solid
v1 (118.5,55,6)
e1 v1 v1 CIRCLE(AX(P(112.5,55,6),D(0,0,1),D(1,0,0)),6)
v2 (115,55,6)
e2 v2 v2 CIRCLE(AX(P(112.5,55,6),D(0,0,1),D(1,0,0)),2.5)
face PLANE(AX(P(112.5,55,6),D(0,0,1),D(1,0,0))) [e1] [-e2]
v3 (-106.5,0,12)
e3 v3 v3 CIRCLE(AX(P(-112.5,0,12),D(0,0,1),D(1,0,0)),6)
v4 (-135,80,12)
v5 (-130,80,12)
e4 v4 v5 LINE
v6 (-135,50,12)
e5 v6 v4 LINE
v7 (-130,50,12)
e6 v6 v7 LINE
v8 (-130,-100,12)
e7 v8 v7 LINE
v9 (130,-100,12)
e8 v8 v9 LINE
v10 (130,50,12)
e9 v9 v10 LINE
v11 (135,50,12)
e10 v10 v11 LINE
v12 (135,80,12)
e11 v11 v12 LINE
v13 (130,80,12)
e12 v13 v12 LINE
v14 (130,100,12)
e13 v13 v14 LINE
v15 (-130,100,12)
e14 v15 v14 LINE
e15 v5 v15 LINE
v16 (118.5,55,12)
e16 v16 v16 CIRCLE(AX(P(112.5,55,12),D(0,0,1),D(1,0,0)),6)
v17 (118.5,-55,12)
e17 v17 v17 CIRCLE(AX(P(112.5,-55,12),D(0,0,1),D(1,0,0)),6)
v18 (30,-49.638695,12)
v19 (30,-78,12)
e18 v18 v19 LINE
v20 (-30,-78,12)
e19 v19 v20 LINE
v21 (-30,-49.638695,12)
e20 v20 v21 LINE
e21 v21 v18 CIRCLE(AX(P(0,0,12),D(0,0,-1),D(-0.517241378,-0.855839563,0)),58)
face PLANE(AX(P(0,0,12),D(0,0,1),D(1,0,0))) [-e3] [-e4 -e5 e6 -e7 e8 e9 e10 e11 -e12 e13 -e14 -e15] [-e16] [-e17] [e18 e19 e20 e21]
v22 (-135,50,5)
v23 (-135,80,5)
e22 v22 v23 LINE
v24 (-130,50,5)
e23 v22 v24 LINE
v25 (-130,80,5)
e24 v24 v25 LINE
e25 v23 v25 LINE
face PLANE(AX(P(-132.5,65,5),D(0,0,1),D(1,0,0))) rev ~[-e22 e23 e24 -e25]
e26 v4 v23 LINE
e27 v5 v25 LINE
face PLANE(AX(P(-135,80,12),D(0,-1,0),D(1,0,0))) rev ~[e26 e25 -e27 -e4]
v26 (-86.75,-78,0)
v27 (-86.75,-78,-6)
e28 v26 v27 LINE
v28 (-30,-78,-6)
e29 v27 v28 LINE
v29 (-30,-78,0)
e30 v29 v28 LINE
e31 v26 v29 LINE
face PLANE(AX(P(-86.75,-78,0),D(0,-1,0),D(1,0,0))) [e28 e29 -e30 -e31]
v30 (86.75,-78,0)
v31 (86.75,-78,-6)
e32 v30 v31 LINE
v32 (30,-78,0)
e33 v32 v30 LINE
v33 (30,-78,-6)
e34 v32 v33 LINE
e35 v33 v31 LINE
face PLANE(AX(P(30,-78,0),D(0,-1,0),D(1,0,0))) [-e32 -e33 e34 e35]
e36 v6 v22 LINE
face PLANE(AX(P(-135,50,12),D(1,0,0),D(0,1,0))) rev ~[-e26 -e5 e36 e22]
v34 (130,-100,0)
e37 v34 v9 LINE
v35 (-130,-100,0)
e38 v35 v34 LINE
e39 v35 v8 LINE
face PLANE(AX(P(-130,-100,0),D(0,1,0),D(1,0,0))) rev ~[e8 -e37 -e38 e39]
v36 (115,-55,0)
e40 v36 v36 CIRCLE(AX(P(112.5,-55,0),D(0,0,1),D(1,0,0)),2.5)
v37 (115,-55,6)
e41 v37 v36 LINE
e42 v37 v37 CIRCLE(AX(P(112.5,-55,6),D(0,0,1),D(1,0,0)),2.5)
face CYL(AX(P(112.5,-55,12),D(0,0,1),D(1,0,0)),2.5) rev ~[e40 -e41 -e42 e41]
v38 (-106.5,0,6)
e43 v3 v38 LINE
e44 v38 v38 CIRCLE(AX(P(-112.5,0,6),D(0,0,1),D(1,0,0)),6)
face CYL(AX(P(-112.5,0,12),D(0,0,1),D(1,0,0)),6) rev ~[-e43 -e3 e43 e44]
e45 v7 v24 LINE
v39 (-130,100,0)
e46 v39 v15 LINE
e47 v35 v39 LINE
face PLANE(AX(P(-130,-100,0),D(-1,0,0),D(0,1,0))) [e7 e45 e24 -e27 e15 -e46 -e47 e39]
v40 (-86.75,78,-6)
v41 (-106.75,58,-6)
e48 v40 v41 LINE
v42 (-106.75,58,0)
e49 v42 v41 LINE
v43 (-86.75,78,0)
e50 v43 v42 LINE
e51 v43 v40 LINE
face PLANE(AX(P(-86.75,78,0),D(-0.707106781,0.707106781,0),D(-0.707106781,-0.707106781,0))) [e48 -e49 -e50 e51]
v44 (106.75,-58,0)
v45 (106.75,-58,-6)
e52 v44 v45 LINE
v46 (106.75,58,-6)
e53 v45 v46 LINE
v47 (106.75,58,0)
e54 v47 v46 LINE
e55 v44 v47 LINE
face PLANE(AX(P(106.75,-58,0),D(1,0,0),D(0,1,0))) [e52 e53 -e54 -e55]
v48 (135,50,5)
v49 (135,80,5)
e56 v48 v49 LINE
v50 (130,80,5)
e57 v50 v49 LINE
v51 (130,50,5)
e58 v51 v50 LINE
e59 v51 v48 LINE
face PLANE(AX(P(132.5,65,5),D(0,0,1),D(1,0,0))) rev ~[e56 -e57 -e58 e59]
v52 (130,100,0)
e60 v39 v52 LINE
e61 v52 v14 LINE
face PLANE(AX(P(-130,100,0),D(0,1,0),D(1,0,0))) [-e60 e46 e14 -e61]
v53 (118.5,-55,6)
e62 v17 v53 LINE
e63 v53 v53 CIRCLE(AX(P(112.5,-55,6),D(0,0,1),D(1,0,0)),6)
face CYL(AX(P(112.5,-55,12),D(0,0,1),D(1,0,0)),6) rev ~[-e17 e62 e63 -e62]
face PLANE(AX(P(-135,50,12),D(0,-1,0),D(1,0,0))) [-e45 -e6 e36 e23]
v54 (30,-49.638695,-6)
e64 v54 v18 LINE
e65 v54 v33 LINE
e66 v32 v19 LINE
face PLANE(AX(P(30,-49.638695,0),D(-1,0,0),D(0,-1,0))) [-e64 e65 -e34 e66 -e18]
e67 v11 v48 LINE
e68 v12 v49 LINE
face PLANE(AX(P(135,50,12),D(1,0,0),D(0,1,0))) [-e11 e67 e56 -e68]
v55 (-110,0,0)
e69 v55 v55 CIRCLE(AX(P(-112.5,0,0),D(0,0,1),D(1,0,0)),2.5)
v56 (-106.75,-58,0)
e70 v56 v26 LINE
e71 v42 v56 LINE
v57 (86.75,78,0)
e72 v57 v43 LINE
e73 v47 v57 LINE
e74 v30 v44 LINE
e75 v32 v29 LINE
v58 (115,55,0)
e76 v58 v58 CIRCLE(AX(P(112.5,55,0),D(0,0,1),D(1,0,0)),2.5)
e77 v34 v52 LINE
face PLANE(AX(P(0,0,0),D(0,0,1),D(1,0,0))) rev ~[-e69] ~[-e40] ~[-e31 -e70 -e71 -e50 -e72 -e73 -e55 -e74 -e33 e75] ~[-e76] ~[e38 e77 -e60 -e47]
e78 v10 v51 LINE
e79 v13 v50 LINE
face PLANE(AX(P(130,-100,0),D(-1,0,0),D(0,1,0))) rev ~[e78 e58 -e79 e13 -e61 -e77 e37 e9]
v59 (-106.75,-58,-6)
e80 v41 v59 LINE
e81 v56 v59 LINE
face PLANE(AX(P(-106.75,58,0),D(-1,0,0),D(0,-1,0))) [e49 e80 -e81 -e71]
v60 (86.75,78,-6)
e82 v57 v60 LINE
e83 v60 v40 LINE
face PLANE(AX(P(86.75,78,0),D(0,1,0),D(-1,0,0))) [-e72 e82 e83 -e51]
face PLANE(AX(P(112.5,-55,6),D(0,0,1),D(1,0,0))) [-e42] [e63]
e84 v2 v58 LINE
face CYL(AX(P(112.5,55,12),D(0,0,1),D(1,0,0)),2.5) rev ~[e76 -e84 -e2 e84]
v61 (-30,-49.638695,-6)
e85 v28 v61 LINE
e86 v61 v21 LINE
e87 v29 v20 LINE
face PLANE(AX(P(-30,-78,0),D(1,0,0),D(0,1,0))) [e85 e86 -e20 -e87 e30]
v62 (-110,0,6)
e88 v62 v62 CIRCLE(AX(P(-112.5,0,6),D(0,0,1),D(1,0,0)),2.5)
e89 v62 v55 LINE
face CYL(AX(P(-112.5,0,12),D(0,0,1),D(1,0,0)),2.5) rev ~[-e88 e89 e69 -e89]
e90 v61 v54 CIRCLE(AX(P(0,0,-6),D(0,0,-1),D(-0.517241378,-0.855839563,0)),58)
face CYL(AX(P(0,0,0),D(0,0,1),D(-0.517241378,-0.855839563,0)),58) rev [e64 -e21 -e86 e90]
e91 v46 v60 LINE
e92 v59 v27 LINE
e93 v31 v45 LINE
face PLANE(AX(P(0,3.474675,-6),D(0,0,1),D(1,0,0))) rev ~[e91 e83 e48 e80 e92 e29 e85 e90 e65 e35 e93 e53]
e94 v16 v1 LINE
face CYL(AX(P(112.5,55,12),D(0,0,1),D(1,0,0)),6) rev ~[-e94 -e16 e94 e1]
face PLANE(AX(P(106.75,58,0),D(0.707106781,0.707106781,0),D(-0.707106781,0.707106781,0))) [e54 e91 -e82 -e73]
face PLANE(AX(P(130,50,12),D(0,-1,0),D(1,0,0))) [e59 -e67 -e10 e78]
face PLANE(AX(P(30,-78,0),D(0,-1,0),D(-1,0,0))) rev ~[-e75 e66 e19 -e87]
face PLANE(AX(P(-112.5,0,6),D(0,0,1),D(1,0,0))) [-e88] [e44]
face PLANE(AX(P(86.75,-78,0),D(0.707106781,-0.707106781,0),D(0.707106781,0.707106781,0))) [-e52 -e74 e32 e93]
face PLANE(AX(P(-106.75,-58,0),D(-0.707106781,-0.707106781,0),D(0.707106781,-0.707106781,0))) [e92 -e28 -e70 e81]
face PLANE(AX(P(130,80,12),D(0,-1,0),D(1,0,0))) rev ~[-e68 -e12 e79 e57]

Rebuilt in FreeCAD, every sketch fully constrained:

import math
import FreeCAD as App
import Part
import Sketcher

doc = App.newDocument("Part")
body = doc.addObject("PartDesign::Body", "Body")

# Sketch on XY plane
sketch1 = doc.addObject("Sketcher::SketchObject", "Sketch")
body.addObject(sketch1)
sketch1.AttachmentSupport = (doc.XY_Plane, [""])
sketch1.MapMode = "FlatFace"
sketch1.addGeometry([
    Part.LineSegment(App.Vector(-130, 100, 0), App.Vector(-130, -100, 0)),  # 0
    Part.LineSegment(App.Vector(-130, -100, 0), App.Vector(130, -100, 0)),  # 1
    Part.LineSegment(App.Vector(130, -100, 0), App.Vector(130, 100, 0)),  # 2
    Part.LineSegment(App.Vector(130, 100, 0), App.Vector(-130, 100, 0)),  # 3
    Part.LineSegment(App.Vector(30, -78, 0), App.Vector(-30, -78, 0)),  # 4
    Part.LineSegment(App.Vector(-30, -78, 0), App.Vector(-30, -50, 0)),  # 5
    Part.ArcOfCircle(Part.Circle(App.Vector(0, 0, 0), App.Vector(0, 0, 1), 58), math.radians(-59), math.radians(239)),  # 6
    Part.LineSegment(App.Vector(30, -50, 0), App.Vector(30, -78, 0)),  # 7
], False)
sketch1.addConstraint([
    Sketcher.Constraint("Coincident", 0, 2, 1, 1),
    Sketcher.Constraint("Coincident", 1, 2, 2, 1),
    Sketcher.Constraint("Coincident", 2, 2, 3, 1),
    Sketcher.Constraint("Coincident", 3, 2, 0, 1),
    Sketcher.Constraint("Coincident", 4, 2, 5, 1),
    Sketcher.Constraint("Coincident", 5, 2, 6, 2),
    Sketcher.Constraint("Coincident", 6, 1, 7, 1),
    Sketcher.Constraint("Coincident", 7, 2, 4, 1),
    Sketcher.Constraint("Vertical", 0),
    Sketcher.Constraint("Horizontal", 1),
    Sketcher.Constraint("Vertical", 2),
    Sketcher.Constraint("Horizontal", 3),
    Sketcher.Constraint("Horizontal", 4),
    Sketcher.Constraint("Vertical", 5),
    Sketcher.Constraint("Vertical", 7),
    Sketcher.Constraint("Coincident", 6, 3, -1, 1),
    Sketcher.Constraint("Symmetric", 0, 2, 2, 2, -1, 1),
    Sketcher.Constraint("Horizontal", 5, 2, 6, 1),
    Sketcher.Constraint("Radius", 6, 58.0),
    Sketcher.Constraint("DistanceX", 1, 1, 1, 2, 260.0),
    Sketcher.Constraint("DistanceX", 4, 2, 4, 1, 60.0),
    Sketcher.Constraint("DistanceY", 0, 2, 0, 1, 200.0),
    Sketcher.Constraint("DistanceY", 4, 2, -1, 1, 78.0),
])
pad1 = doc.addObject("PartDesign::Pad", "Pad")
body.addObject(pad1)
pad1.Profile = sketch1
pad1.Length = 12

# Sketch on XY plane
sketch2 = doc.addObject("Sketcher::SketchObject", "Sketch001")
body.addObject(sketch2)
sketch2.AttachmentSupport = (doc.XY_Plane, [""])
sketch2.MapMode = "FlatFace"
sketch2.addGeometry([
    Part.LineSegment(App.Vector(107, 58, 0), App.Vector(87, 78, 0)),  # 0
    Part.LineSegment(App.Vector(87, 78, 0), App.Vector(-87, 78, 0)),  # 1
    Part.LineSegment(App.Vector(-87, 78, 0), App.Vector(-107, 58, 0)),  # 2
    Part.LineSegment(App.Vector(-107, 58, 0), App.Vector(-107, -58, 0)),  # 3
    Part.LineSegment(App.Vector(-107, -58, 0), App.Vector(-87, -78, 0)),  # 4
    Part.LineSegment(App.Vector(-87, -78, 0), App.Vector(-30, -78, 0)),  # 5
    Part.LineSegment(App.Vector(-30, -78, 0), App.Vector(-30, -50, 0)),  # 6
    Part.ArcOfCircle(Part.Circle(App.Vector(0, 0, 0), App.Vector(0, 0, 1), 58), math.radians(-59), math.radians(239)),  # 7
    Part.LineSegment(App.Vector(30, -50, 0), App.Vector(30, -78, 0)),  # 8
    Part.LineSegment(App.Vector(30, -78, 0), App.Vector(87, -78, 0)),  # 9
    Part.LineSegment(App.Vector(87, -78, 0), App.Vector(107, -58, 0)),  # 10
    Part.LineSegment(App.Vector(107, -58, 0), App.Vector(107, 58, 0)),  # 11
], False)
sketch2.addConstraint([
    Sketcher.Constraint("Coincident", 0, 2, 1, 1),
    Sketcher.Constraint("Coincident", 1, 2, 2, 1),
    Sketcher.Constraint("Coincident", 2, 2, 3, 1),
    Sketcher.Constraint("Coincident", 3, 2, 4, 1),
    Sketcher.Constraint("Coincident", 4, 2, 5, 1),
    Sketcher.Constraint("Coincident", 5, 2, 6, 1),
    Sketcher.Constraint("Coincident", 6, 2, 7, 2),
    Sketcher.Constraint("Coincident", 7, 1, 8, 1),
    Sketcher.Constraint("Coincident", 8, 2, 9, 1),
    Sketcher.Constraint("Coincident", 9, 2, 10, 1),
    Sketcher.Constraint("Coincident", 10, 2, 11, 1),
    Sketcher.Constraint("Coincident", 11, 2, 0, 1),
    Sketcher.Constraint("Horizontal", 1),
    Sketcher.Constraint("Vertical", 3),
    Sketcher.Constraint("Horizontal", 5),
    Sketcher.Constraint("Vertical", 6),
    Sketcher.Constraint("Vertical", 8),
    Sketcher.Constraint("Horizontal", 9),
    Sketcher.Constraint("Vertical", 11),
    Sketcher.Constraint("Coincident", 7, 3, -1, 1),
    Sketcher.Constraint("Symmetric", 0, 2, 4, 2, -1, 1),
    Sketcher.Constraint("Symmetric", 1, 2, 9, 2, -1, 1),
    Sketcher.Constraint("Symmetric", 2, 2, 10, 2, -1, 1),
    Sketcher.Constraint("Perpendicular", 0, 2),
    Sketcher.Constraint("Perpendicular", 2, 4),
    Sketcher.Constraint("Horizontal", 6, 2, 7, 1),
    Sketcher.Constraint("Horizontal", 3, 2, 10, 2),
    Sketcher.Constraint("Vertical", 1, 2, 4, 2),
    Sketcher.Constraint("Radius", 7, 58.0),
    Sketcher.Constraint("DistanceY", 3, 2, 3, 1, 116.0),
    Sketcher.Constraint("DistanceX", 1, 2, 1, 1, 173.5),
    Sketcher.Constraint("DistanceY", -1, 1, 0, 2, 78.0),
    Sketcher.Constraint("DistanceX", 5, 2, -1, 1, 30.0),
])
pad2 = doc.addObject("PartDesign::Pad", "Pad001")
body.addObject(pad2)
pad2.Profile = sketch2
pad2.Length = 6
pad2.Reversed = True

# Sketch on XY plane
sketch3 = doc.addObject("Sketcher::SketchObject", "Sketch002")
body.addObject(sketch3)
sketch3.AttachmentSupport = (doc.XY_Plane, [""])
sketch3.MapMode = "FlatFace"
sketch3.AttachmentOffset = App.Placement(App.Vector(0, 0, 12), App.Rotation())
sketch3.addGeometry([
    Part.LineSegment(App.Vector(-135, 80, 0), App.Vector(-135, 50, 0)),  # 0
    Part.LineSegment(App.Vector(-135, 50, 0), App.Vector(-130, 50, 0)),  # 1
    Part.LineSegment(App.Vector(-130, 50, 0), App.Vector(-130, 80, 0)),  # 2
    Part.LineSegment(App.Vector(-130, 80, 0), App.Vector(-135, 80, 0)),  # 3
    Part.LineSegment(App.Vector(130, 80, 0), App.Vector(130, 50, 0)),  # 4
    Part.LineSegment(App.Vector(130, 50, 0), App.Vector(135, 50, 0)),  # 5
    Part.LineSegment(App.Vector(135, 50, 0), App.Vector(135, 80, 0)),  # 6
    Part.LineSegment(App.Vector(135, 80, 0), App.Vector(130, 80, 0)),  # 7
], False)
sketch3.addConstraint([
    Sketcher.Constraint("Coincident", 0, 2, 1, 1),
    Sketcher.Constraint("Coincident", 1, 2, 2, 1),
    Sketcher.Constraint("Coincident", 2, 2, 3, 1),
    Sketcher.Constraint("Coincident", 3, 2, 0, 1),
    Sketcher.Constraint("Coincident", 4, 2, 5, 1),
    Sketcher.Constraint("Coincident", 5, 2, 6, 1),
    Sketcher.Constraint("Coincident", 6, 2, 7, 1),
    Sketcher.Constraint("Coincident", 7, 2, 4, 1),
    Sketcher.Constraint("Vertical", 0),
    Sketcher.Constraint("Horizontal", 1),
    Sketcher.Constraint("Vertical", 2),
    Sketcher.Constraint("Horizontal", 3),
    Sketcher.Constraint("Vertical", 4),
    Sketcher.Constraint("Horizontal", 5),
    Sketcher.Constraint("Vertical", 6),
    Sketcher.Constraint("Horizontal", 7),
    Sketcher.Constraint("Symmetric", 1, 2, 4, 2, -2),
    Sketcher.Constraint("Symmetric", 3, 2, 6, 2, -2),
    Sketcher.Constraint("DistanceX", 1, 1, 1, 2, 5.0),
    Sketcher.Constraint("DistanceY", 0, 2, 0, 1, 30.0),
    Sketcher.Constraint("DistanceX", 0, 2, -1, 1, 135.0),
    Sketcher.Constraint("DistanceY", -1, 1, 0, 2, 50.0),
])
pad3 = doc.addObject("PartDesign::Pad", "Pad002")
body.addObject(pad3)
pad3.Profile = sketch3
pad3.Length = 7
pad3.Reversed = True

# Sketch on XY plane
sketch4 = doc.addObject("Sketcher::SketchObject", "Sketch003")
body.addObject(sketch4)
sketch4.AttachmentSupport = (doc.XY_Plane, [""])
sketch4.MapMode = "FlatFace"
sketch4.AttachmentOffset = App.Placement(App.Vector(0, 0, 12), App.Rotation())
sketch4.addGeometry([
    Part.Circle(App.Vector(-112.5, 0, 0), App.Vector(0, 0, 1), 6),
    Part.Circle(App.Vector(112.5, 55, 0), App.Vector(0, 0, 1), 6),
    Part.Circle(App.Vector(112.5, -55, 0), App.Vector(0, 0, 1), 6),
    Part.Circle(App.Vector(112.5, -55, 0), App.Vector(0, 0, 1), 2.5),
], False)
sketch4.addConstraint([
    Sketcher.Constraint("Coincident", 3, 3, 2, 3),
    Sketcher.Constraint("Equal", 0, 1),
    Sketcher.Constraint("Equal", 1, 2),
    Sketcher.Constraint("Symmetric", 1, 3, 2, 3, -1),
    Sketcher.Constraint("PointOnObject", 0, 3, -1),
    Sketcher.Constraint("Diameter", 0, 12.0),
    Sketcher.Constraint("Diameter", 3, 5.0),
    Sketcher.Constraint("DistanceY", -1, 1, 1, 3, 55.0),
    Sketcher.Constraint("DistanceX", 0, 3, 1, 3, 225.0),
    Sketcher.Constraint("DistanceX", 0, 3, -1, 1, 112.5),
])
pocket1 = doc.addObject("PartDesign::Pocket", "Pocket")
body.addObject(pocket1)
pocket1.Profile = sketch4
pocket1.Length = 6

# Sketch on XY plane
sketch5 = doc.addObject("Sketcher::SketchObject", "Sketch004")
body.addObject(sketch5)
sketch5.AttachmentSupport = (doc.XY_Plane, [""])
sketch5.MapMode = "FlatFace"
sketch5.AttachmentOffset = App.Placement(App.Vector(0, 0, 12), App.Rotation())
sketch5.addGeometry([
    Part.Circle(App.Vector(-112.5, 0, 0), App.Vector(0, 0, 1), 2.5),
    Part.Circle(App.Vector(112.5, 55, 0), App.Vector(0, 0, 1), 2.5),
    Part.Circle(App.Vector(112.5, -55, 0), App.Vector(0, 0, 1), 2.5),
], False)
sketch5.addConstraint([
    Sketcher.Constraint("Equal", 0, 1),
    Sketcher.Constraint("Equal", 1, 2),
    Sketcher.Constraint("Symmetric", 1, 3, 2, 3, -1),
    Sketcher.Constraint("PointOnObject", 0, 3, -1),
    Sketcher.Constraint("Diameter", 0, 5.0),
    Sketcher.Constraint("DistanceY", -1, 1, 1, 3, 55.0),
    Sketcher.Constraint("DistanceX", 0, 3, 1, 3, 225.0),
    Sketcher.Constraint("DistanceX", 0, 3, -1, 1, 112.5),
])
pocket2 = doc.addObject("PartDesign::Pocket", "Pocket001")
body.addObject(pocket2)
pocket2.Profile = sketch5
pocket2.Type = "ThroughAll"

doc.recompute()
